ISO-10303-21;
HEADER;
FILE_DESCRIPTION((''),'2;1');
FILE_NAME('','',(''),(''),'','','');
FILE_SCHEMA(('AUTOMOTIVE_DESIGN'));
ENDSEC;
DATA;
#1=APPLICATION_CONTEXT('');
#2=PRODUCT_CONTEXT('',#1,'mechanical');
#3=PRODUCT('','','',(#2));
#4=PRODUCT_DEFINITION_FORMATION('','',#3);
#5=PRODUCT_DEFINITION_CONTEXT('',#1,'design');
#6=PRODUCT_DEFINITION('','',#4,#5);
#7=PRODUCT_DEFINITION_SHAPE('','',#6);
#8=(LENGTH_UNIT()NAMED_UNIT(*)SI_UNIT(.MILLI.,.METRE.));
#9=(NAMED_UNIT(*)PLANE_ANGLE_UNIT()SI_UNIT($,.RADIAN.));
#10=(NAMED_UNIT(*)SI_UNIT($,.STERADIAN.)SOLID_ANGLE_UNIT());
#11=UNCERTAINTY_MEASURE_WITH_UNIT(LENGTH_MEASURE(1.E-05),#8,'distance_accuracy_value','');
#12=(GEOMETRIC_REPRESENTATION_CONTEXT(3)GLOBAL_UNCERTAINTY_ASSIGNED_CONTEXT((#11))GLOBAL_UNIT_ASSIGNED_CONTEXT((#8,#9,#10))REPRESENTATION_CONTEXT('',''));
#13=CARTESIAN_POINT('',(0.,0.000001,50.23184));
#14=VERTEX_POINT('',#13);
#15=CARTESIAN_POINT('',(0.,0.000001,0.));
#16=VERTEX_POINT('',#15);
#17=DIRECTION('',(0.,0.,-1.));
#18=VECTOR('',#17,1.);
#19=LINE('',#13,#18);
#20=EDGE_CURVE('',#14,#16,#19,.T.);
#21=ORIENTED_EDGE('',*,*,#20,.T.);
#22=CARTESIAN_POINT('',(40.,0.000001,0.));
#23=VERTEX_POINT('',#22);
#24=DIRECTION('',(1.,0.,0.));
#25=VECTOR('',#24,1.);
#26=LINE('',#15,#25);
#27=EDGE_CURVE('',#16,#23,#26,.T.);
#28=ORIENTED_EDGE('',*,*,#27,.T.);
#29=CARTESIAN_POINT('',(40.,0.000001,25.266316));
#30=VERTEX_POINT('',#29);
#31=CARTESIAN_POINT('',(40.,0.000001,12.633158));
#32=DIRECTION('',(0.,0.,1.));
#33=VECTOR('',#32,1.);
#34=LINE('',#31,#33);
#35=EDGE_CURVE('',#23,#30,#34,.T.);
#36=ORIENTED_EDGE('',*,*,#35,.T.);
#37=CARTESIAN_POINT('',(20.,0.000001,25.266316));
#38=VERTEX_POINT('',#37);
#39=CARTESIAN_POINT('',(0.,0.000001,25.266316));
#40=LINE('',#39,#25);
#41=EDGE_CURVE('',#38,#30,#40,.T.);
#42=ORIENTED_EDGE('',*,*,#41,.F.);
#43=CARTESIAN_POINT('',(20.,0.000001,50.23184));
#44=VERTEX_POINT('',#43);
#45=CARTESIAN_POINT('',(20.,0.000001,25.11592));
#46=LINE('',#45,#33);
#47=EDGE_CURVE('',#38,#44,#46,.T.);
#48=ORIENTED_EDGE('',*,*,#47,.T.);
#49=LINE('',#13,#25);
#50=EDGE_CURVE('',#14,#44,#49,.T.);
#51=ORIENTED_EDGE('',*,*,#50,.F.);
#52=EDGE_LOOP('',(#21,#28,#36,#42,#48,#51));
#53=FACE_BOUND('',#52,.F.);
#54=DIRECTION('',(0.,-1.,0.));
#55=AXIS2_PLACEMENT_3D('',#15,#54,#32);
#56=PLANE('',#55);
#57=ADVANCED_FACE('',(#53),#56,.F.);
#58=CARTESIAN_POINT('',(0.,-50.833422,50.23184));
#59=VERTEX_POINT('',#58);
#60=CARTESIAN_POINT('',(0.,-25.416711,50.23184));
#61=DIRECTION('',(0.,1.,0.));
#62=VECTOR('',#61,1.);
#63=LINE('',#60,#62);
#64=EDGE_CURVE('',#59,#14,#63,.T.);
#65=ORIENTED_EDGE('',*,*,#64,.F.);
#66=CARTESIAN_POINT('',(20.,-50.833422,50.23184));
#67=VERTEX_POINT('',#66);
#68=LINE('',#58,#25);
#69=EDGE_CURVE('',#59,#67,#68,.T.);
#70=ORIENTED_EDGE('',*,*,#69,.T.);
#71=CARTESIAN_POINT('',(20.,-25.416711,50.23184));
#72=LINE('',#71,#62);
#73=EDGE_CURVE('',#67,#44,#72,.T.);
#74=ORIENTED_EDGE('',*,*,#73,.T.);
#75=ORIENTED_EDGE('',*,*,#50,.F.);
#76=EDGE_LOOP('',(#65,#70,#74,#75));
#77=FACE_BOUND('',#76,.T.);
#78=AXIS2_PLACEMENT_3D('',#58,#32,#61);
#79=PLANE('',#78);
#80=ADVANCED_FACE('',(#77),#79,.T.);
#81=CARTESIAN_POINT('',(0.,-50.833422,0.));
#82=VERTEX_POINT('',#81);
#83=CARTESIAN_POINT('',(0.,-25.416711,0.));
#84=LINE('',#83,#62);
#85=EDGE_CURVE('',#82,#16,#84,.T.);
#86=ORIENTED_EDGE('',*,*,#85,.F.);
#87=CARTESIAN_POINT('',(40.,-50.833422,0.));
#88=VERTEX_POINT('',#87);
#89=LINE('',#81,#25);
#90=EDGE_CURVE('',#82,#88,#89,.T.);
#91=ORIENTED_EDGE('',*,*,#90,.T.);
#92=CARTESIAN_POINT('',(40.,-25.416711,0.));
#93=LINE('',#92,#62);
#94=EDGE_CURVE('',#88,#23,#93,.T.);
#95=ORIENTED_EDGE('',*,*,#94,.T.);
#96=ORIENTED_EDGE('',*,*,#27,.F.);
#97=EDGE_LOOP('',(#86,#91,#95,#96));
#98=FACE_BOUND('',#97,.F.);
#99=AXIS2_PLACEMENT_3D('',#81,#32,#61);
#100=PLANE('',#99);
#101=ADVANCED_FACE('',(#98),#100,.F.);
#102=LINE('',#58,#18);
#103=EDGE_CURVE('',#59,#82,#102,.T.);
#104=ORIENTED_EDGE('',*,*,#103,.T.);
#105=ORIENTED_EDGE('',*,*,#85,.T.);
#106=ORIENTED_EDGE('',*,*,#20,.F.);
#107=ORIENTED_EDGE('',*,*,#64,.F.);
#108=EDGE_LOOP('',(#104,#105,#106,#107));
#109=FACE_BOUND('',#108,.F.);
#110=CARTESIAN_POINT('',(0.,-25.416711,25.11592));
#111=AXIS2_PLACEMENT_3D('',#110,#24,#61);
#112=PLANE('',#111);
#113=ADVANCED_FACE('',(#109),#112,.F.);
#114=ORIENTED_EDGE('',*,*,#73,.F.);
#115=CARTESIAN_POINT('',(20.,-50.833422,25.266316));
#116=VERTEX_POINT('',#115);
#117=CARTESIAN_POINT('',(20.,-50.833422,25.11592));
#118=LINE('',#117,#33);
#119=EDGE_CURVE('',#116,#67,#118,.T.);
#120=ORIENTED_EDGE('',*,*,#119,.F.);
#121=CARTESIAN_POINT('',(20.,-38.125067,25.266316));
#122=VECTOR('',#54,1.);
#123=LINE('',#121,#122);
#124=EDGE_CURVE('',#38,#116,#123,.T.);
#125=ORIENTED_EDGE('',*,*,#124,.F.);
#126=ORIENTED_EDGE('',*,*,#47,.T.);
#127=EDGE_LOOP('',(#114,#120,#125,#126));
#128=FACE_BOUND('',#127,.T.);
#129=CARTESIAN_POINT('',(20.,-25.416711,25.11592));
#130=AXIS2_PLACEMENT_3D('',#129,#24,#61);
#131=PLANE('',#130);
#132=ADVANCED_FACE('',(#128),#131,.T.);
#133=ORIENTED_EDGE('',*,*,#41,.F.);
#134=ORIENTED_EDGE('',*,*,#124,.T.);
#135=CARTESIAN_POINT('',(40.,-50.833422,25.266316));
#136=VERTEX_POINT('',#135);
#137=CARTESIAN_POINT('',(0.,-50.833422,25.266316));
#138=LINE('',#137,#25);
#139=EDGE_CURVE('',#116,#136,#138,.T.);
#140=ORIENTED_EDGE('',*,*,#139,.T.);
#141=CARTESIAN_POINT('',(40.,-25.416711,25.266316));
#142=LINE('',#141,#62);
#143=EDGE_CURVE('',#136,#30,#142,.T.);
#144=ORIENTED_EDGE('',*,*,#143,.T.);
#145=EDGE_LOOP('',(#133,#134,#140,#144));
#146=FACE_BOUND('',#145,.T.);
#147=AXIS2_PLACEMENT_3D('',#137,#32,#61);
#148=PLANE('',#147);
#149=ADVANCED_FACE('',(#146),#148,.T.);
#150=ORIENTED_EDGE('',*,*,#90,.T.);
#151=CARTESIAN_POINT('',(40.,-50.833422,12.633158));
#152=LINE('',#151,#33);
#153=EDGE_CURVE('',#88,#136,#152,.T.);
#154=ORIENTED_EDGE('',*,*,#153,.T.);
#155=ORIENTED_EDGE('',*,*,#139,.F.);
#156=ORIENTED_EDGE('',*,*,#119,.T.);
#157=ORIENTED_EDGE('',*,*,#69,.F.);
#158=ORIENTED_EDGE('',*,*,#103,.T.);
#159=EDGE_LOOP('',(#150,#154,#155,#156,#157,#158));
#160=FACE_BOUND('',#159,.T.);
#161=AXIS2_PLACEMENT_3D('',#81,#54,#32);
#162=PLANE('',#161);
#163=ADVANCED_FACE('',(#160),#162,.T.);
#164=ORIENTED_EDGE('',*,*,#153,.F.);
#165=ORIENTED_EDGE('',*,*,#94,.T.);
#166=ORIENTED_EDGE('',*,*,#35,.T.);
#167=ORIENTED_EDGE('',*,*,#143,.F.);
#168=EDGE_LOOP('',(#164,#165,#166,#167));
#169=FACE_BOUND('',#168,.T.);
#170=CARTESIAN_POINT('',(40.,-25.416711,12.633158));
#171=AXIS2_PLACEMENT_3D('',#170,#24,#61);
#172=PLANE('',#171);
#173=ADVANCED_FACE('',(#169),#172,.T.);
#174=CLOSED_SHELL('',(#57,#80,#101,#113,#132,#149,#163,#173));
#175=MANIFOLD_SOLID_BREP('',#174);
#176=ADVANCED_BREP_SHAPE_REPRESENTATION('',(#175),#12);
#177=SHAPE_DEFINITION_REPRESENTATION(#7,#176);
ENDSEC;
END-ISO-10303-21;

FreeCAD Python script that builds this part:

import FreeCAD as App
import Part
import Sketcher

doc = App.newDocument("Part")
body = doc.addObject("PartDesign::Body", "Body")

# Sketch on YZ plane
sketch1 = body.newObject("Sketcher::SketchObject", "Sketch")
sketch1.AttachmentSupport = (doc.getObject("YZ_Plane"), [""])
sketch1.MapMode = "FlatFace"
sketch1.addGeometry([
    Part.LineSegment(App.Vector(-51, 50, 0), App.Vector(-51, 0, 0)),
    Part.LineSegment(App.Vector(-51, 0, 0), App.Vector(0, 0, 0)),
    Part.LineSegment(App.Vector(0, 0, 0), App.Vector(0, 50, 0)),
    Part.LineSegment(App.Vector(0, 50, 0), App.Vector(-51, 50, 0)),
], False)
sketch1.addConstraint([
    Sketcher.Constraint("Coincident", 0, 2, 1, 1),
    Sketcher.Constraint("Coincident", 1, 2, 2, 1),
    Sketcher.Constraint("Coincident", 2, 2, 3, 1),
    Sketcher.Constraint("Coincident", 3, 2, 0, 1),
    Sketcher.Constraint("Vertical", 0),
    Sketcher.Constraint("Horizontal", 1),
    Sketcher.Constraint("Vertical", 2),
    Sketcher.Constraint("Horizontal", 3),
    Sketcher.Constraint("Coincident", 1, 2, -1, 1),
    Sketcher.Constraint("DistanceY", 0, 2, 0, 1, 50.23184),
    Sketcher.Constraint("DistanceX", 1, 1, 1, 2, 50.833423),
])
pad1 = body.newObject("PartDesign::Pad", "Pad")
pad1.Profile = sketch1
pad1.Length = 20

# Sketch on YZ plane
sketch2 = body.newObject("Sketcher::SketchObject", "Sketch001")
sketch2.AttachmentSupport = (doc.getObject("YZ_Plane"), [""])
sketch2.MapMode = "FlatFace"
sketch2.addGeometry([
    Part.LineSegment(App.Vector(-51, 25, 0), App.Vector(-51, 0, 0)),
    Part.LineSegment(App.Vector(-51, 0, 0), App.Vector(0, 0, 0)),
    Part.LineSegment(App.Vector(0, 0, 0), App.Vector(0, 25, 0)),
    Part.LineSegment(App.Vector(0, 25, 0), App.Vector(-51, 25, 0)),
], False)
sketch2.addConstraint([
    Sketcher.Constraint("Coincident", 0, 2, 1, 1),
    Sketcher.Constraint("Coincident", 1, 2, 2, 1),
    Sketcher.Constraint("Coincident", 2, 2, 3, 1),
    Sketcher.Constraint("Coincident", 3, 2, 0, 1),
    Sketcher.Constraint("Vertical", 0),
    Sketcher.Constraint("Horizontal", 1),
    Sketcher.Constraint("Vertical", 2),
    Sketcher.Constraint("Horizontal", 3),
    Sketcher.Constraint("Coincident", 1, 2, -1, 1),
    Sketcher.Constraint("DistanceX", 1, 1, 1, 2, 50.833423),
    Sketcher.Constraint("DistanceY", 0, 2, 0, 1, 25.266316),
])
pad2 = body.newObject("PartDesign::Pad", "Pad001")
pad2.Profile = sketch2
pad2.Length = 40

doc.recompute()
